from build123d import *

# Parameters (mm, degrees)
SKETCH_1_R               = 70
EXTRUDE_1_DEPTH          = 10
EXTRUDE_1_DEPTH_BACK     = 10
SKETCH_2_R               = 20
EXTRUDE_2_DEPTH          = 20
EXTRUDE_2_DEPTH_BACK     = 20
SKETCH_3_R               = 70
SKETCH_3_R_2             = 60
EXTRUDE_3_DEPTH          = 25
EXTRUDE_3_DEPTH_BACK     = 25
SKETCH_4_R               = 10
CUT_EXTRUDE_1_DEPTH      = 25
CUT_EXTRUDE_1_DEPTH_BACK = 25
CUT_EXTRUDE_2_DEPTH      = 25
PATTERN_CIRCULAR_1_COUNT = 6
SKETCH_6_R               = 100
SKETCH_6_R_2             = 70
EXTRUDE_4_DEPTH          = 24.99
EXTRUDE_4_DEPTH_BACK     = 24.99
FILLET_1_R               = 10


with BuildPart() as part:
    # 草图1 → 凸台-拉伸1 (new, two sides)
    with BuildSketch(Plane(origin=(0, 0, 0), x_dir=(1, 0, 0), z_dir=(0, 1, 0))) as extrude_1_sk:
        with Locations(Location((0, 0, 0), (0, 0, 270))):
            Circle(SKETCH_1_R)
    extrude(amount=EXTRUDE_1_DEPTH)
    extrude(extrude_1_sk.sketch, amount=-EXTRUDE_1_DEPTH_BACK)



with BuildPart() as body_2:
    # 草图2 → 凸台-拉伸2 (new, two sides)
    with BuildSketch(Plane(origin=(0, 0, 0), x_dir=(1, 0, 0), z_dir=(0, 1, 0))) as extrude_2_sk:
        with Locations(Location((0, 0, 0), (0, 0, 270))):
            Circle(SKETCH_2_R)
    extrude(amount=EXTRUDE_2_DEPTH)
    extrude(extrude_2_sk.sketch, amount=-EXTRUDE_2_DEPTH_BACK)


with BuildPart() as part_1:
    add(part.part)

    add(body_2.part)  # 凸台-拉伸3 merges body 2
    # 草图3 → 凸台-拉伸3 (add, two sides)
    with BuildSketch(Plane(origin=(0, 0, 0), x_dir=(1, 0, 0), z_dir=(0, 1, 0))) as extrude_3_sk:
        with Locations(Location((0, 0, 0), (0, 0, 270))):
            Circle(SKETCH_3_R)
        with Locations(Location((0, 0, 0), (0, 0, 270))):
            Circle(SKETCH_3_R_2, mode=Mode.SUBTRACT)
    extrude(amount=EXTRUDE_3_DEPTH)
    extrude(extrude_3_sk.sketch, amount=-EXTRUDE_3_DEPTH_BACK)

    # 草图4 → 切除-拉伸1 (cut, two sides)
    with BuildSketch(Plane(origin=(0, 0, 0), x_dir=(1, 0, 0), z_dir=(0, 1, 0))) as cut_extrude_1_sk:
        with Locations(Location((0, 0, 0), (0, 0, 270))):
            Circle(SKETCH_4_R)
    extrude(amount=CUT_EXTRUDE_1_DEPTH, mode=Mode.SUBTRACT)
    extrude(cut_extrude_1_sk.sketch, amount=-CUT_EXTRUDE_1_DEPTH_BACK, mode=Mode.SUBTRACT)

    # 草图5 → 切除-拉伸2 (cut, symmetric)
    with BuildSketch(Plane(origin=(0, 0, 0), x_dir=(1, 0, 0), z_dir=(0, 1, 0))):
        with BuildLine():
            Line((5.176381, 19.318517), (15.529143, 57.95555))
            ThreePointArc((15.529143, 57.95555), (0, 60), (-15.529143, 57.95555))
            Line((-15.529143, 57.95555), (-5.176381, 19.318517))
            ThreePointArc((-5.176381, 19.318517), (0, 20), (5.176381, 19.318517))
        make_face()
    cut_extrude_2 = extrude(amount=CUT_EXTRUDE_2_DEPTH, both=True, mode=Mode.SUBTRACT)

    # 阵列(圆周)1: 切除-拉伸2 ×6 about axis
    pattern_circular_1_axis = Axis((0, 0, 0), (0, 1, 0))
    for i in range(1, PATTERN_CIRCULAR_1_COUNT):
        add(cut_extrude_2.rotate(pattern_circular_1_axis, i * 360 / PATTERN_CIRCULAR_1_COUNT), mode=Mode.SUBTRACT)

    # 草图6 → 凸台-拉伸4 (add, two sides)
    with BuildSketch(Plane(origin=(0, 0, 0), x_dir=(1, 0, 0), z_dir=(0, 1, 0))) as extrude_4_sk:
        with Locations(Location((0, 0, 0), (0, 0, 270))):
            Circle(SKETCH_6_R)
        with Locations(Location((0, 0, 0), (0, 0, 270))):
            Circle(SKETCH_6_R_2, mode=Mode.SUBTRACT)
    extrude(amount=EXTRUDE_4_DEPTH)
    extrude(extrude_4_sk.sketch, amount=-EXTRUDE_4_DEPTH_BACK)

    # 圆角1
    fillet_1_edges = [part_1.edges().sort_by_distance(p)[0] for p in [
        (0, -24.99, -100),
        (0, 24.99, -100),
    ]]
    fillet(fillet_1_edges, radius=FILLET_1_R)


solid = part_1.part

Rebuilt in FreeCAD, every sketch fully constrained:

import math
import FreeCAD as App
import Part
import Sketcher
Q = App.Units.Quantity


def edges_at(feature, points):
    """Names of the edges that pass closest to the given points."""
    edges = feature.Shape.Edges
    near = lambda p: min(range(len(edges)), key=lambda i: edges[i].distToShape(Part.Vertex(*p))[0])
    return sorted({f"Edge{near(p) + 1}" for p in points})

doc = App.newDocument("Part")
body = doc.addObject("PartDesign::Body", "Body")

# Sketch on XZ plane
sketch1 = body.newObject("Sketcher::SketchObject", "Sketch")
sketch1.AttachmentSupport = (doc.getObject("XZ_Plane"), [""])
sketch1.MapMode = "FlatFace"
sketch1.addGeometry(Part.Circle(App.Vector(0, 0, 0), App.Vector(0, 0, 1), 70), False)
sketch1.addConstraint(Sketcher.Constraint("Coincident", 0, 3, -1, 1))
sketch1.addConstraint(Sketcher.Constraint("Diameter", 0, 140.0))
pad1 = body.newObject("PartDesign::Pad", "Pad")
pad1.Profile = sketch1
pad1.Type = "TwoLengths"
pad1.Length = 10
pad1.Length2 = 10
pad1.Reversed = True
body2 = doc.addObject("PartDesign::Body", "Body001")

# Sketch on XZ plane
sketch2 = body2.newObject("Sketcher::SketchObject", "Sketch001")
sketch2.AttachmentSupport = (doc.getObject("XZ_Plane001"), [""])
sketch2.MapMode = "FlatFace"
sketch2.addGeometry(Part.Circle(App.Vector(0, 0, 0), App.Vector(0, 0, 1), 20), False)
sketch2.addConstraint(Sketcher.Constraint("Coincident", 0, 3, -1, 1))
sketch2.addConstraint(Sketcher.Constraint("Diameter", 0, 40.0))
pad2 = body2.newObject("PartDesign::Pad", "Pad001")
pad2.Profile = sketch2
pad2.Type = "TwoLengths"
pad2.Length = 20
pad2.Length2 = 20
pad2.Reversed = True
doc.recompute()

boolean = body.newObject("PartDesign::Boolean", "Boolean")
boolean.Type = "Fuse"
boolean.addObjects([body2])

# Sketch on XZ plane
sketch3 = body.newObject("Sketcher::SketchObject", "Sketch002")
sketch3.AttachmentSupport = (doc.getObject("XZ_Plane"), [""])
sketch3.MapMode = "FlatFace"
sketch3.addGeometry(Part.Circle(App.Vector(0, 0, 0), App.Vector(0, 0, 1), 70), False)
sketch3.addGeometry(Part.Circle(App.Vector(0, 0, 0), App.Vector(0, 0, 1), 60), False)
sketch3.addConstraint(Sketcher.Constraint("Coincident", 0, 3, -1, 1))
sketch3.addConstraint(Sketcher.Constraint("Coincident", 1, 3, -1, 1))
sketch3.addConstraint(Sketcher.Constraint("Diameter", 0, 140.0))
sketch3.addConstraint(Sketcher.Constraint("Diameter", 1, 120.0))
pad3 = body.newObject("PartDesign::Pad", "Pad002")
pad3.Profile = sketch3
pad3.Type = "TwoLengths"
pad3.Length = 25
pad3.Length2 = 25
pad3.Reversed = True

# Sketch on XZ plane
sketch4 = body.newObject("Sketcher::SketchObject", "Sketch003")
sketch4.AttachmentSupport = (doc.getObject("XZ_Plane"), [""])
sketch4.MapMode = "FlatFace"
sketch4.addGeometry(Part.Circle(App.Vector(0, 0, 0), App.Vector(0, 0, 1), 10), False)
sketch4.addConstraint(Sketcher.Constraint("Coincident", 0, 3, -1, 1))
sketch4.addConstraint(Sketcher.Constraint("Diameter", 0, 20.0))
pocket1 = body.newObject("PartDesign::Pocket", "Pocket")
pocket1.Profile = sketch4
pocket1.Type = "ThroughAll"
pocket1.Midplane = True

# Sketch on XZ plane
sketch5 = body.newObject("Sketcher::SketchObject", "Sketch004")
sketch5.AttachmentSupport = (doc.getObject("XZ_Plane"), [""])
sketch5.MapMode = "FlatFace"
sketch5.addGeometry(Part.LineSegment(App.Vector(5.176381, -19.318517, 0), App.Vector(15.529143, -57.95555, 0)), False)
sketch5.addGeometry(Part.ArcOfCircle(Part.Circle(App.Vector(0, 0.000014, 0), App.Vector(0, 0, 1), 60.000014), math.radians(-104.999997), math.radians(-75.000003)), False)
sketch5.addGeometry(Part.LineSegment(App.Vector(-15.529143, -57.95555, 0), App.Vector(-5.176381, -19.318517, 0)), False)
sketch5.addGeometry(Part.ArcOfCircle(Part.Circle(App.Vector(0, 0.000014, 0), App.Vector(0, 0, 1), 20.000014), math.radians(-104.999989), math.radians(-75.000011)), False)
sketch5.addConstraint(Sketcher.Constraint("Coincident", 0, 2, 1, 2))
sketch5.addConstraint(Sketcher.Constraint("Coincident", 1, 1, 2, 1))
sketch5.addConstraint(Sketcher.Constraint("Coincident", 2, 2, 3, 1))
sketch5.addConstraint(Sketcher.Constraint("Coincident", 3, 2, 0, 1))
sketch5.addConstraint(Sketcher.Constraint("Coincident", 3, 3, 1, 3))
sketch5.addConstraint(Sketcher.Constraint("Symmetric", 0, 2, 1, 1, -2))
sketch5.addConstraint(Sketcher.Constraint("Horizontal", 2, 2, 3, 2))
sketch5.addConstraint(Sketcher.Constraint("Angle", 0, Q("-75 deg")))
sketch5.addConstraint(Sketcher.Constraint("Distance", 0, 40.0))
sketch5.addConstraint(Sketcher.Constraint("Radius", 1, 60.000014))
sketch5.addConstraint(Sketcher.Constraint("DistanceY", 0, 2, -1, 1, 57.95555))
sketch5.addConstraint(Sketcher.Constraint("DistanceX", 2, 2, -1, 1, 5.176381))
pocket2 = body.newObject("PartDesign::Pocket", "Pocket001")
pocket2.Profile = sketch5
pocket2.Length = 50
pocket2.Midplane = True
doc.recompute()

polarpattern = body.newObject("PartDesign::PolarPattern", "PolarPattern")
polarpattern.Originals = [pocket2]
polarpattern.Axis = (doc.getObject("Y_Axis"), [""])
polarpattern.Angle = 360
polarpattern.Occurrences = 6
body.Tip = polarpattern

# Sketch on XZ plane
sketch6 = body.newObject("Sketcher::SketchObject", "Sketch005")
sketch6.AttachmentSupport = (doc.getObject("XZ_Plane"), [""])
sketch6.MapMode = "FlatFace"
sketch6.addGeometry(Part.Circle(App.Vector(0, 0, 0), App.Vector(0, 0, 1), 100), False)
sketch6.addGeometry(Part.Circle(App.Vector(0, 0, 0), App.Vector(0, 0, 1), 70), False)
sketch6.addConstraint(Sketcher.Constraint("Coincident", 0, 3, -1, 1))
sketch6.addConstraint(Sketcher.Constraint("Coincident", 1, 3, -1, 1))
sketch6.addConstraint(Sketcher.Constraint("Diameter", 0, 200.0))
sketch6.addConstraint(Sketcher.Constraint("Diameter", 1, 140.0))
pad4 = body.newObject("PartDesign::Pad", "Pad003")
pad4.Profile = sketch6
pad4.Type = "TwoLengths"
pad4.Length = 24.99
pad4.Length2 = 24.99
pad4.Reversed = True
doc.recompute()

fillet = body.newObject("PartDesign::Fillet", "Fillet")
fillet.Base = (pad4, edges_at(pad4, [(0, -24.99, -100), (0, 24.99, -100)]))
fillet.Radius = 10

doc.recompute()
